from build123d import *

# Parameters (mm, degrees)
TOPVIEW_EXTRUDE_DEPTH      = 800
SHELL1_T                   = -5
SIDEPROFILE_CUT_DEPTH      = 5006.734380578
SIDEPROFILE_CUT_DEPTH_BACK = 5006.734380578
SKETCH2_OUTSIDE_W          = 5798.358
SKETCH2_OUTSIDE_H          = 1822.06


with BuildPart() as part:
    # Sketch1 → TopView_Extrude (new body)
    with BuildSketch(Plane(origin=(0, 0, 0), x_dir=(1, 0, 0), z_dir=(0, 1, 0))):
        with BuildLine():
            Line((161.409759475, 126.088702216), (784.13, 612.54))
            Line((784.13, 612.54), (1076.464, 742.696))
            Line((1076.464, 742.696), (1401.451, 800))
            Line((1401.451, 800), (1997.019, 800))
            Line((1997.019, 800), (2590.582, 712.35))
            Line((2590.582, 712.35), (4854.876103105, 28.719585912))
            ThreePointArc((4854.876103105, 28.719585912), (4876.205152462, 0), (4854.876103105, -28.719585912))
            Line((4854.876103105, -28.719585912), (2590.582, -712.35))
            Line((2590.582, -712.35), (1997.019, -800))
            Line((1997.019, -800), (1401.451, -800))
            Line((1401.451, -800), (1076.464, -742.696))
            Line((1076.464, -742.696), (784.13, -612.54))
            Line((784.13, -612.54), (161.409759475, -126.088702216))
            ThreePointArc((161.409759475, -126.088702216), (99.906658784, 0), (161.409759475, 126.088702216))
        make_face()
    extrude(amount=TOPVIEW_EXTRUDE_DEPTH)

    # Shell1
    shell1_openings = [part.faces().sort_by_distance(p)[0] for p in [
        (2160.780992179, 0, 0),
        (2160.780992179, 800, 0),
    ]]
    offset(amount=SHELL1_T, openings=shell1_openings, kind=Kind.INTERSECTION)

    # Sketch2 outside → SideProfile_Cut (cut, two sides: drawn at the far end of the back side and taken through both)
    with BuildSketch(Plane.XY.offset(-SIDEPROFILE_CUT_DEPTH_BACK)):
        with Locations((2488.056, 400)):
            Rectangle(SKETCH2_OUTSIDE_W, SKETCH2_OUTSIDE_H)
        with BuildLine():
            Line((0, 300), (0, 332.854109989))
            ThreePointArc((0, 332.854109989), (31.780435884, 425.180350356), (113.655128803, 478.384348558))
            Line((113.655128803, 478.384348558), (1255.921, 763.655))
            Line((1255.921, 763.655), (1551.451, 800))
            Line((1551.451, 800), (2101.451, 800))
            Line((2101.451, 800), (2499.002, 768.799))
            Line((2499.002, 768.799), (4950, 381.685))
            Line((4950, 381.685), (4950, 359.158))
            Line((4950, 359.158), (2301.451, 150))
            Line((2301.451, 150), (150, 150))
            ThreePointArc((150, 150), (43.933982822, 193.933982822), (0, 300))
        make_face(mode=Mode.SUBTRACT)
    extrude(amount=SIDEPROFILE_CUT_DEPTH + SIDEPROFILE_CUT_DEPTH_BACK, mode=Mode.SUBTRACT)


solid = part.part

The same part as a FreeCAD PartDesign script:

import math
import FreeCAD as App
import Part
import Sketcher
Q = App.Units.Quantity


def faces_at(feature, points):
    """Names of the faces that lie closest to the given points."""
    faces = feature.Shape.Faces
    near = lambda p: min(range(len(faces)), key=lambda i: faces[i].distToShape(Part.Vertex(*p))[0])
    return sorted({f"Face{near(p) + 1}" for p in points})


def add_polygon(sketch, points):
    """Adds a closed chain of lines whose ends are joined by coincident constraints."""
    first, n = sketch.GeometryCount, len(points)
    for a, b in zip(points, points[1:] + points[:1]):
        sketch.addGeometry(Part.LineSegment(App.Vector(*a, 0), App.Vector(*b, 0)), False)
    for i in range(n):
        sketch.addConstraint(Sketcher.Constraint("Coincident", first + i, 2, first + (i + 1) % n, 1))

doc = App.newDocument("Part")
params = doc.addObject("Spreadsheet::Sheet", "Params")
for row, (alias, value) in enumerate([
    ("sketch1_radius", "160 mm"),
    ("sketch1_radius2", "30 mm"),
    ("pad1_length", "800 mm"),
    ("thickness_wall", "5 mm"),
    ("sketch2_radius", "150 mm"),
    ("sketch2_width", "550 mm"),
    ("sketch2_height", "1822.06 mm"),
], start=1):
    params.set(f"A{row}", alias)
    params.set(f"B{row}", "=" + value)
    params.setAlias(f"B{row}", alias)

body = doc.addObject("PartDesign::Body", "Body")

# Sketch on XZ plane
sketch1 = body.newObject("Sketcher::SketchObject", "Sketch")
sketch1.AttachmentSupport = (doc.getObject("XZ_Plane"), [""])
sketch1.MapMode = "FlatFace"
sketch1.addGeometry([
    Part.LineSegment(App.Vector(784.13, -612.54, 0), App.Vector(161.409759, -126.088702, 0)),  # 0
    Part.ArcOfCircle(Part.Circle(App.Vector(259.906659, 0, 0), App.Vector(0, 0, 1), 160), math.radians(127.995939), math.radians(232.004061)),  # 1
    Part.LineSegment(App.Vector(161.409759, 126.088702, 0), App.Vector(784.13, 612.54, 0)),  # 2
    Part.LineSegment(App.Vector(784.13, 612.54, 0), App.Vector(1076.464, 742.696, 0)),  # 3
    Part.LineSegment(App.Vector(1076.464, 742.696, 0), App.Vector(1401.451, 800, 0)),  # 4
    Part.LineSegment(App.Vector(1401.451, 800, 0), App.Vector(1997.019, 800, 0)),  # 5
    Part.LineSegment(App.Vector(1997.019, 800, 0), App.Vector(2590.582, 712.35, 0)),  # 6
    Part.LineSegment(App.Vector(2590.582, 712.35, 0), App.Vector(4854.876103, 28.719586, 0)),  # 7
    Part.ArcOfCircle(Part.Circle(App.Vector(4846.205152, 0, 0), App.Vector(0, 0, 1), 30), math.radians(-73.200007), math.radians(73.200007)),  # 8
    Part.LineSegment(App.Vector(4854.876103, -28.719586, 0), App.Vector(2590.582, -712.35, 0)),  # 9
    Part.LineSegment(App.Vector(2590.582, -712.35, 0), App.Vector(1997.019, -800, 0)),  # 10
    Part.LineSegment(App.Vector(1997.019, -800, 0), App.Vector(1401.451, -800, 0)),  # 11
    Part.LineSegment(App.Vector(1401.451, -800, 0), App.Vector(1076.464, -742.696, 0)),  # 12
    Part.LineSegment(App.Vector(1076.464, -742.696, 0), App.Vector(784.13, -612.54, 0)),  # 13
], False)
sketch1.addConstraint([
    Sketcher.Constraint("Coincident", 0, 2, 1, 2),
    Sketcher.Constraint("Coincident", 1, 1, 2, 1),
    Sketcher.Constraint("Coincident", 2, 2, 3, 1),
    Sketcher.Constraint("Coincident", 3, 2, 4, 1),
    Sketcher.Constraint("Coincident", 4, 2, 5, 1),
    Sketcher.Constraint("Coincident", 5, 2, 6, 1),
    Sketcher.Constraint("Coincident", 6, 2, 7, 1),
    Sketcher.Constraint("Coincident", 7, 2, 8, 2),
    Sketcher.Constraint("Coincident", 8, 1, 9, 1),
    Sketcher.Constraint("Coincident", 9, 2, 10, 1),
    Sketcher.Constraint("Coincident", 10, 2, 11, 1),
    Sketcher.Constraint("Coincident", 11, 2, 12, 1),
    Sketcher.Constraint("Coincident", 12, 2, 13, 1),
    Sketcher.Constraint("Coincident", 13, 2, 0, 1),
    Sketcher.Constraint("Horizontal", 5),
    Sketcher.Constraint("Horizontal", 11),
    Sketcher.Constraint("PointOnObject", 1, 3, -1),
    Sketcher.Constraint("PointOnObject", 8, 3, -1),
    Sketcher.Constraint("Radius", 1, Q("160 mm")),
    Sketcher.Constraint("Radius", 8, Q("30 mm")),
    Sketcher.Constraint("DistanceY", -1, 1, 4, 2, Q("800 mm")),
    Sketcher.Constraint("DistanceY", 10, 2, -1, 1, Q("800 mm")),
    Sketcher.Constraint("DistanceY", 9, 2, 6, 2, Q("1424.7 mm")),
    Sketcher.Constraint("DistanceX", 5, 1, 5, 2, Q("595.568 mm")),
    Sketcher.Constraint("DistanceX", 11, 2, 11, 1, Q("595.568 mm")),
    Sketcher.Constraint("DistanceX", -1, 1, 2, 2, Q("784.13 mm")),
    Sketcher.Constraint("DistanceY", -1, 1, 2, 2, Q("612.54 mm")),
    Sketcher.Constraint("DistanceY", -1, 1, 6, 2, Q("712.35 mm")),
    Sketcher.Constraint("DistanceX", -1, 1, 13, 2, Q("784.13 mm")),
    Sketcher.Constraint("DistanceY", 13, 2, -1, 1, Q("612.54 mm")),
    Sketcher.Constraint("DistanceX", -1, 1, 3, 2, Q("1076.464 mm")),
    Sketcher.Constraint("DistanceY", -1, 1, 3, 2, Q("742.696 mm")),
    Sketcher.Constraint("DistanceX", -1, 1, 4, 2, Q("1401.451 mm")),
    Sketcher.Constraint("DistanceX", -1, 1, 6, 2, Q("2590.582 mm")),
    Sketcher.Constraint("DistanceX", -1, 1, 9, 2, Q("2590.582 mm")),
    Sketcher.Constraint("DistanceX", -1, 1, 10, 2, Q("1997.019 mm")),
    Sketcher.Constraint("DistanceX", -1, 1, 12, 2, Q("1076.464 mm")),
    Sketcher.Constraint("DistanceY", 12, 2, -1, 1, Q("742.696 mm")),
    Sketcher.Constraint("DistanceX", 0, 2, 1, 3, Q("98.496899 mm")),
    Sketcher.Constraint("DistanceX", 1, 1, 1, 3, Q("98.496899 mm")),
    Sketcher.Constraint("Distance", 0, Q("790.199572 mm")),
    Sketcher.Constraint("Distance", 7, Q("2365.24382 mm")),
    Sketcher.Constraint("Distance", 9, Q("2365.24382 mm")),
    Sketcher.Constraint("DistanceX", 8, 3, 7, 2, Q("8.670951 mm")),
])
sketch1.setExpression("Constraints[18]", "Params.sketch1_radius")
sketch1.setExpression("Constraints[19]", "Params.sketch1_radius2")
pad1 = body.newObject("PartDesign::Pad", "Pad")
pad1.Profile = sketch1
pad1.setExpression("Length", "Params.pad1_length")
pad1.Reversed = True
doc.recompute()

thickness = body.newObject("PartDesign::Thickness", "Thickness")
thickness.Base = (pad1, faces_at(pad1, [(2488.056, 0, 0), (2488.056, 800, 0)]))
thickness.setExpression("Value", "Params.thickness_wall")
thickness.Reversed = True
thickness.Join = "Intersection"

# Sketch on XY plane
sketch2 = body.newObject("Sketcher::SketchObject", "Sketch001")
sketch2.AttachmentSupport = (doc.getObject("XY_Plane"), [""])
sketch2.MapMode = "FlatFace"
add_polygon(sketch2, [(-411, 1311), (-411, -511), (5387, -511), (5387, 1311)])  # lines 0-3
sketch2.addGeometry(Part.ArcOfCircle(Part.Circle(App.Vector(150, 300, 0), App.Vector(0, 0, 1), 150), math.radians(180), math.radians(270)), False)  # 4
sketch2.addGeometry(Part.LineSegment(App.Vector(0, 300, 0), App.Vector(0, 333, 0)), False)  # 5
sketch2.addGeometry(Part.ArcOfCircle(Part.Circle(App.Vector(150, 333, 0), App.Vector(0, 0, 1), 150), math.radians(104), math.radians(180)), False)  # 6
sketch2.addGeometry(Part.LineSegment(App.Vector(114, 478, 0), App.Vector(1256, 764, 0)), False)  # 7
sketch2.addGeometry(Part.LineSegment(App.Vector(1256, 764, 0), App.Vector(1551, 800, 0)), False)  # 8
sketch2.addGeometry(Part.LineSegment(App.Vector(1551, 800, 0), App.Vector(2101, 800, 0)), False)  # 9
sketch2.addGeometry(Part.LineSegment(App.Vector(2101, 800, 0), App.Vector(2499, 769, 0)), False)  # 10
sketch2.addGeometry(Part.LineSegment(App.Vector(2499, 769, 0), App.Vector(4950, 382, 0)), False)  # 11
sketch2.addGeometry(Part.LineSegment(App.Vector(4950, 382, 0), App.Vector(4950, 359, 0)), False)  # 12
sketch2.addGeometry(Part.LineSegment(App.Vector(4950, 359, 0), App.Vector(2301, 150, 0)), False)  # 13
sketch2.addGeometry(Part.LineSegment(App.Vector(2301, 150, 0), App.Vector(150, 150, 0)), False)  # 14
sketch2.addConstraint([
    Sketcher.Constraint("Tangent", 4, 1, 5, 1),
    Sketcher.Constraint("Tangent", 5, 2, 6, 2),
    Sketcher.Constraint("Tangent", 6, 1, 7, 1),
    Sketcher.Constraint("Coincident", 7, 2, 8, 1),
    Sketcher.Constraint("Coincident", 8, 2, 9, 1),
    Sketcher.Constraint("Coincident", 9, 2, 10, 1),
    Sketcher.Constraint("Coincident", 10, 2, 11, 1),
    Sketcher.Constraint("Coincident", 11, 2, 12, 1),
    Sketcher.Constraint("Coincident", 12, 2, 13, 1),
    Sketcher.Constraint("Coincident", 13, 2, 14, 1),
    Sketcher.Constraint("Tangent", 14, 2, 4, 2),
    Sketcher.Constraint("Vertical", 0),
    Sketcher.Constraint("Horizontal", 1),
    Sketcher.Constraint("Vertical", 2),
    Sketcher.Constraint("Horizontal", 3),
    Sketcher.Constraint("Vertical", 5),
    Sketcher.Constraint("Horizontal", 9),
    Sketcher.Constraint("Vertical", 12),
    Sketcher.Constraint("Horizontal", 14),
    Sketcher.Constraint("Equal", 4, 6),
    Sketcher.Constraint("PointOnObject", 4, 1, -2),
    Sketcher.Constraint("Radius", 4, Q("150 mm")),
    Sketcher.Constraint("DistanceX", 9, 1, 9, 2, Q("550 mm")),
    Sketcher.Constraint("DistanceY", -1, 1, 4, 3, Q("300 mm")),
    Sketcher.Constraint("DistanceY", -1, 1, 8, 2, Q("800 mm")),
    Sketcher.Constraint("DistanceX", -1, 1, 11, 2, Q("4950 mm")),
    Sketcher.Constraint("DistanceX", 9, 2, 13, 2, Q("200 mm")),
    Sketcher.Constraint("DistanceY", 0, 2, 0, 1, Q("1822.06 mm")),
    Sketcher.Constraint("DistanceX", 1, 1, 1, 2, Q("5798.358 mm")),
    Sketcher.Constraint("DistanceX", 14, 2, 14, 1, Q("2151.451 mm")),
    Sketcher.Constraint("DistanceY", 12, 2, 12, 1, Q("22.527 mm")),
    Sketcher.Constraint("DistanceY", 0, 2, -1, 1, Q("511.03 mm")),
    Sketcher.Constraint("DistanceX", 7, 2, 8, 2, Q("295.53 mm")),
    Sketcher.Constraint("Distance", 7, Q("1177.348999 mm")),
    Sketcher.Constraint("DistanceX", 0, 2, -1, 1, Q("411.123 mm")),
    Sketcher.Constraint("DistanceY", -1, 1, 7, 2, Q("763.655 mm")),
    Sketcher.Constraint("DistanceX", -1, 1, 10, 2, Q("2499.002 mm")),
    Sketcher.Constraint("DistanceY", -1, 1, 10, 2, Q("768.799 mm")),
    Sketcher.Constraint("DistanceY", -1, 1, 11, 2, Q("381.685 mm")),
])
sketch2.setExpression("Constraints[25]", "Params.sketch2_radius")
sketch2.setExpression("Constraints[26]", "Params.sketch2_width")
sketch2.setExpression("Constraints[31]", "Params.sketch2_height")
pocket1 = body.newObject("PartDesign::Pocket", "Pocket")
pocket1.Profile = sketch2
pocket1.Type = "ThroughAll"
pocket1.Midplane = True

doc.recompute()
